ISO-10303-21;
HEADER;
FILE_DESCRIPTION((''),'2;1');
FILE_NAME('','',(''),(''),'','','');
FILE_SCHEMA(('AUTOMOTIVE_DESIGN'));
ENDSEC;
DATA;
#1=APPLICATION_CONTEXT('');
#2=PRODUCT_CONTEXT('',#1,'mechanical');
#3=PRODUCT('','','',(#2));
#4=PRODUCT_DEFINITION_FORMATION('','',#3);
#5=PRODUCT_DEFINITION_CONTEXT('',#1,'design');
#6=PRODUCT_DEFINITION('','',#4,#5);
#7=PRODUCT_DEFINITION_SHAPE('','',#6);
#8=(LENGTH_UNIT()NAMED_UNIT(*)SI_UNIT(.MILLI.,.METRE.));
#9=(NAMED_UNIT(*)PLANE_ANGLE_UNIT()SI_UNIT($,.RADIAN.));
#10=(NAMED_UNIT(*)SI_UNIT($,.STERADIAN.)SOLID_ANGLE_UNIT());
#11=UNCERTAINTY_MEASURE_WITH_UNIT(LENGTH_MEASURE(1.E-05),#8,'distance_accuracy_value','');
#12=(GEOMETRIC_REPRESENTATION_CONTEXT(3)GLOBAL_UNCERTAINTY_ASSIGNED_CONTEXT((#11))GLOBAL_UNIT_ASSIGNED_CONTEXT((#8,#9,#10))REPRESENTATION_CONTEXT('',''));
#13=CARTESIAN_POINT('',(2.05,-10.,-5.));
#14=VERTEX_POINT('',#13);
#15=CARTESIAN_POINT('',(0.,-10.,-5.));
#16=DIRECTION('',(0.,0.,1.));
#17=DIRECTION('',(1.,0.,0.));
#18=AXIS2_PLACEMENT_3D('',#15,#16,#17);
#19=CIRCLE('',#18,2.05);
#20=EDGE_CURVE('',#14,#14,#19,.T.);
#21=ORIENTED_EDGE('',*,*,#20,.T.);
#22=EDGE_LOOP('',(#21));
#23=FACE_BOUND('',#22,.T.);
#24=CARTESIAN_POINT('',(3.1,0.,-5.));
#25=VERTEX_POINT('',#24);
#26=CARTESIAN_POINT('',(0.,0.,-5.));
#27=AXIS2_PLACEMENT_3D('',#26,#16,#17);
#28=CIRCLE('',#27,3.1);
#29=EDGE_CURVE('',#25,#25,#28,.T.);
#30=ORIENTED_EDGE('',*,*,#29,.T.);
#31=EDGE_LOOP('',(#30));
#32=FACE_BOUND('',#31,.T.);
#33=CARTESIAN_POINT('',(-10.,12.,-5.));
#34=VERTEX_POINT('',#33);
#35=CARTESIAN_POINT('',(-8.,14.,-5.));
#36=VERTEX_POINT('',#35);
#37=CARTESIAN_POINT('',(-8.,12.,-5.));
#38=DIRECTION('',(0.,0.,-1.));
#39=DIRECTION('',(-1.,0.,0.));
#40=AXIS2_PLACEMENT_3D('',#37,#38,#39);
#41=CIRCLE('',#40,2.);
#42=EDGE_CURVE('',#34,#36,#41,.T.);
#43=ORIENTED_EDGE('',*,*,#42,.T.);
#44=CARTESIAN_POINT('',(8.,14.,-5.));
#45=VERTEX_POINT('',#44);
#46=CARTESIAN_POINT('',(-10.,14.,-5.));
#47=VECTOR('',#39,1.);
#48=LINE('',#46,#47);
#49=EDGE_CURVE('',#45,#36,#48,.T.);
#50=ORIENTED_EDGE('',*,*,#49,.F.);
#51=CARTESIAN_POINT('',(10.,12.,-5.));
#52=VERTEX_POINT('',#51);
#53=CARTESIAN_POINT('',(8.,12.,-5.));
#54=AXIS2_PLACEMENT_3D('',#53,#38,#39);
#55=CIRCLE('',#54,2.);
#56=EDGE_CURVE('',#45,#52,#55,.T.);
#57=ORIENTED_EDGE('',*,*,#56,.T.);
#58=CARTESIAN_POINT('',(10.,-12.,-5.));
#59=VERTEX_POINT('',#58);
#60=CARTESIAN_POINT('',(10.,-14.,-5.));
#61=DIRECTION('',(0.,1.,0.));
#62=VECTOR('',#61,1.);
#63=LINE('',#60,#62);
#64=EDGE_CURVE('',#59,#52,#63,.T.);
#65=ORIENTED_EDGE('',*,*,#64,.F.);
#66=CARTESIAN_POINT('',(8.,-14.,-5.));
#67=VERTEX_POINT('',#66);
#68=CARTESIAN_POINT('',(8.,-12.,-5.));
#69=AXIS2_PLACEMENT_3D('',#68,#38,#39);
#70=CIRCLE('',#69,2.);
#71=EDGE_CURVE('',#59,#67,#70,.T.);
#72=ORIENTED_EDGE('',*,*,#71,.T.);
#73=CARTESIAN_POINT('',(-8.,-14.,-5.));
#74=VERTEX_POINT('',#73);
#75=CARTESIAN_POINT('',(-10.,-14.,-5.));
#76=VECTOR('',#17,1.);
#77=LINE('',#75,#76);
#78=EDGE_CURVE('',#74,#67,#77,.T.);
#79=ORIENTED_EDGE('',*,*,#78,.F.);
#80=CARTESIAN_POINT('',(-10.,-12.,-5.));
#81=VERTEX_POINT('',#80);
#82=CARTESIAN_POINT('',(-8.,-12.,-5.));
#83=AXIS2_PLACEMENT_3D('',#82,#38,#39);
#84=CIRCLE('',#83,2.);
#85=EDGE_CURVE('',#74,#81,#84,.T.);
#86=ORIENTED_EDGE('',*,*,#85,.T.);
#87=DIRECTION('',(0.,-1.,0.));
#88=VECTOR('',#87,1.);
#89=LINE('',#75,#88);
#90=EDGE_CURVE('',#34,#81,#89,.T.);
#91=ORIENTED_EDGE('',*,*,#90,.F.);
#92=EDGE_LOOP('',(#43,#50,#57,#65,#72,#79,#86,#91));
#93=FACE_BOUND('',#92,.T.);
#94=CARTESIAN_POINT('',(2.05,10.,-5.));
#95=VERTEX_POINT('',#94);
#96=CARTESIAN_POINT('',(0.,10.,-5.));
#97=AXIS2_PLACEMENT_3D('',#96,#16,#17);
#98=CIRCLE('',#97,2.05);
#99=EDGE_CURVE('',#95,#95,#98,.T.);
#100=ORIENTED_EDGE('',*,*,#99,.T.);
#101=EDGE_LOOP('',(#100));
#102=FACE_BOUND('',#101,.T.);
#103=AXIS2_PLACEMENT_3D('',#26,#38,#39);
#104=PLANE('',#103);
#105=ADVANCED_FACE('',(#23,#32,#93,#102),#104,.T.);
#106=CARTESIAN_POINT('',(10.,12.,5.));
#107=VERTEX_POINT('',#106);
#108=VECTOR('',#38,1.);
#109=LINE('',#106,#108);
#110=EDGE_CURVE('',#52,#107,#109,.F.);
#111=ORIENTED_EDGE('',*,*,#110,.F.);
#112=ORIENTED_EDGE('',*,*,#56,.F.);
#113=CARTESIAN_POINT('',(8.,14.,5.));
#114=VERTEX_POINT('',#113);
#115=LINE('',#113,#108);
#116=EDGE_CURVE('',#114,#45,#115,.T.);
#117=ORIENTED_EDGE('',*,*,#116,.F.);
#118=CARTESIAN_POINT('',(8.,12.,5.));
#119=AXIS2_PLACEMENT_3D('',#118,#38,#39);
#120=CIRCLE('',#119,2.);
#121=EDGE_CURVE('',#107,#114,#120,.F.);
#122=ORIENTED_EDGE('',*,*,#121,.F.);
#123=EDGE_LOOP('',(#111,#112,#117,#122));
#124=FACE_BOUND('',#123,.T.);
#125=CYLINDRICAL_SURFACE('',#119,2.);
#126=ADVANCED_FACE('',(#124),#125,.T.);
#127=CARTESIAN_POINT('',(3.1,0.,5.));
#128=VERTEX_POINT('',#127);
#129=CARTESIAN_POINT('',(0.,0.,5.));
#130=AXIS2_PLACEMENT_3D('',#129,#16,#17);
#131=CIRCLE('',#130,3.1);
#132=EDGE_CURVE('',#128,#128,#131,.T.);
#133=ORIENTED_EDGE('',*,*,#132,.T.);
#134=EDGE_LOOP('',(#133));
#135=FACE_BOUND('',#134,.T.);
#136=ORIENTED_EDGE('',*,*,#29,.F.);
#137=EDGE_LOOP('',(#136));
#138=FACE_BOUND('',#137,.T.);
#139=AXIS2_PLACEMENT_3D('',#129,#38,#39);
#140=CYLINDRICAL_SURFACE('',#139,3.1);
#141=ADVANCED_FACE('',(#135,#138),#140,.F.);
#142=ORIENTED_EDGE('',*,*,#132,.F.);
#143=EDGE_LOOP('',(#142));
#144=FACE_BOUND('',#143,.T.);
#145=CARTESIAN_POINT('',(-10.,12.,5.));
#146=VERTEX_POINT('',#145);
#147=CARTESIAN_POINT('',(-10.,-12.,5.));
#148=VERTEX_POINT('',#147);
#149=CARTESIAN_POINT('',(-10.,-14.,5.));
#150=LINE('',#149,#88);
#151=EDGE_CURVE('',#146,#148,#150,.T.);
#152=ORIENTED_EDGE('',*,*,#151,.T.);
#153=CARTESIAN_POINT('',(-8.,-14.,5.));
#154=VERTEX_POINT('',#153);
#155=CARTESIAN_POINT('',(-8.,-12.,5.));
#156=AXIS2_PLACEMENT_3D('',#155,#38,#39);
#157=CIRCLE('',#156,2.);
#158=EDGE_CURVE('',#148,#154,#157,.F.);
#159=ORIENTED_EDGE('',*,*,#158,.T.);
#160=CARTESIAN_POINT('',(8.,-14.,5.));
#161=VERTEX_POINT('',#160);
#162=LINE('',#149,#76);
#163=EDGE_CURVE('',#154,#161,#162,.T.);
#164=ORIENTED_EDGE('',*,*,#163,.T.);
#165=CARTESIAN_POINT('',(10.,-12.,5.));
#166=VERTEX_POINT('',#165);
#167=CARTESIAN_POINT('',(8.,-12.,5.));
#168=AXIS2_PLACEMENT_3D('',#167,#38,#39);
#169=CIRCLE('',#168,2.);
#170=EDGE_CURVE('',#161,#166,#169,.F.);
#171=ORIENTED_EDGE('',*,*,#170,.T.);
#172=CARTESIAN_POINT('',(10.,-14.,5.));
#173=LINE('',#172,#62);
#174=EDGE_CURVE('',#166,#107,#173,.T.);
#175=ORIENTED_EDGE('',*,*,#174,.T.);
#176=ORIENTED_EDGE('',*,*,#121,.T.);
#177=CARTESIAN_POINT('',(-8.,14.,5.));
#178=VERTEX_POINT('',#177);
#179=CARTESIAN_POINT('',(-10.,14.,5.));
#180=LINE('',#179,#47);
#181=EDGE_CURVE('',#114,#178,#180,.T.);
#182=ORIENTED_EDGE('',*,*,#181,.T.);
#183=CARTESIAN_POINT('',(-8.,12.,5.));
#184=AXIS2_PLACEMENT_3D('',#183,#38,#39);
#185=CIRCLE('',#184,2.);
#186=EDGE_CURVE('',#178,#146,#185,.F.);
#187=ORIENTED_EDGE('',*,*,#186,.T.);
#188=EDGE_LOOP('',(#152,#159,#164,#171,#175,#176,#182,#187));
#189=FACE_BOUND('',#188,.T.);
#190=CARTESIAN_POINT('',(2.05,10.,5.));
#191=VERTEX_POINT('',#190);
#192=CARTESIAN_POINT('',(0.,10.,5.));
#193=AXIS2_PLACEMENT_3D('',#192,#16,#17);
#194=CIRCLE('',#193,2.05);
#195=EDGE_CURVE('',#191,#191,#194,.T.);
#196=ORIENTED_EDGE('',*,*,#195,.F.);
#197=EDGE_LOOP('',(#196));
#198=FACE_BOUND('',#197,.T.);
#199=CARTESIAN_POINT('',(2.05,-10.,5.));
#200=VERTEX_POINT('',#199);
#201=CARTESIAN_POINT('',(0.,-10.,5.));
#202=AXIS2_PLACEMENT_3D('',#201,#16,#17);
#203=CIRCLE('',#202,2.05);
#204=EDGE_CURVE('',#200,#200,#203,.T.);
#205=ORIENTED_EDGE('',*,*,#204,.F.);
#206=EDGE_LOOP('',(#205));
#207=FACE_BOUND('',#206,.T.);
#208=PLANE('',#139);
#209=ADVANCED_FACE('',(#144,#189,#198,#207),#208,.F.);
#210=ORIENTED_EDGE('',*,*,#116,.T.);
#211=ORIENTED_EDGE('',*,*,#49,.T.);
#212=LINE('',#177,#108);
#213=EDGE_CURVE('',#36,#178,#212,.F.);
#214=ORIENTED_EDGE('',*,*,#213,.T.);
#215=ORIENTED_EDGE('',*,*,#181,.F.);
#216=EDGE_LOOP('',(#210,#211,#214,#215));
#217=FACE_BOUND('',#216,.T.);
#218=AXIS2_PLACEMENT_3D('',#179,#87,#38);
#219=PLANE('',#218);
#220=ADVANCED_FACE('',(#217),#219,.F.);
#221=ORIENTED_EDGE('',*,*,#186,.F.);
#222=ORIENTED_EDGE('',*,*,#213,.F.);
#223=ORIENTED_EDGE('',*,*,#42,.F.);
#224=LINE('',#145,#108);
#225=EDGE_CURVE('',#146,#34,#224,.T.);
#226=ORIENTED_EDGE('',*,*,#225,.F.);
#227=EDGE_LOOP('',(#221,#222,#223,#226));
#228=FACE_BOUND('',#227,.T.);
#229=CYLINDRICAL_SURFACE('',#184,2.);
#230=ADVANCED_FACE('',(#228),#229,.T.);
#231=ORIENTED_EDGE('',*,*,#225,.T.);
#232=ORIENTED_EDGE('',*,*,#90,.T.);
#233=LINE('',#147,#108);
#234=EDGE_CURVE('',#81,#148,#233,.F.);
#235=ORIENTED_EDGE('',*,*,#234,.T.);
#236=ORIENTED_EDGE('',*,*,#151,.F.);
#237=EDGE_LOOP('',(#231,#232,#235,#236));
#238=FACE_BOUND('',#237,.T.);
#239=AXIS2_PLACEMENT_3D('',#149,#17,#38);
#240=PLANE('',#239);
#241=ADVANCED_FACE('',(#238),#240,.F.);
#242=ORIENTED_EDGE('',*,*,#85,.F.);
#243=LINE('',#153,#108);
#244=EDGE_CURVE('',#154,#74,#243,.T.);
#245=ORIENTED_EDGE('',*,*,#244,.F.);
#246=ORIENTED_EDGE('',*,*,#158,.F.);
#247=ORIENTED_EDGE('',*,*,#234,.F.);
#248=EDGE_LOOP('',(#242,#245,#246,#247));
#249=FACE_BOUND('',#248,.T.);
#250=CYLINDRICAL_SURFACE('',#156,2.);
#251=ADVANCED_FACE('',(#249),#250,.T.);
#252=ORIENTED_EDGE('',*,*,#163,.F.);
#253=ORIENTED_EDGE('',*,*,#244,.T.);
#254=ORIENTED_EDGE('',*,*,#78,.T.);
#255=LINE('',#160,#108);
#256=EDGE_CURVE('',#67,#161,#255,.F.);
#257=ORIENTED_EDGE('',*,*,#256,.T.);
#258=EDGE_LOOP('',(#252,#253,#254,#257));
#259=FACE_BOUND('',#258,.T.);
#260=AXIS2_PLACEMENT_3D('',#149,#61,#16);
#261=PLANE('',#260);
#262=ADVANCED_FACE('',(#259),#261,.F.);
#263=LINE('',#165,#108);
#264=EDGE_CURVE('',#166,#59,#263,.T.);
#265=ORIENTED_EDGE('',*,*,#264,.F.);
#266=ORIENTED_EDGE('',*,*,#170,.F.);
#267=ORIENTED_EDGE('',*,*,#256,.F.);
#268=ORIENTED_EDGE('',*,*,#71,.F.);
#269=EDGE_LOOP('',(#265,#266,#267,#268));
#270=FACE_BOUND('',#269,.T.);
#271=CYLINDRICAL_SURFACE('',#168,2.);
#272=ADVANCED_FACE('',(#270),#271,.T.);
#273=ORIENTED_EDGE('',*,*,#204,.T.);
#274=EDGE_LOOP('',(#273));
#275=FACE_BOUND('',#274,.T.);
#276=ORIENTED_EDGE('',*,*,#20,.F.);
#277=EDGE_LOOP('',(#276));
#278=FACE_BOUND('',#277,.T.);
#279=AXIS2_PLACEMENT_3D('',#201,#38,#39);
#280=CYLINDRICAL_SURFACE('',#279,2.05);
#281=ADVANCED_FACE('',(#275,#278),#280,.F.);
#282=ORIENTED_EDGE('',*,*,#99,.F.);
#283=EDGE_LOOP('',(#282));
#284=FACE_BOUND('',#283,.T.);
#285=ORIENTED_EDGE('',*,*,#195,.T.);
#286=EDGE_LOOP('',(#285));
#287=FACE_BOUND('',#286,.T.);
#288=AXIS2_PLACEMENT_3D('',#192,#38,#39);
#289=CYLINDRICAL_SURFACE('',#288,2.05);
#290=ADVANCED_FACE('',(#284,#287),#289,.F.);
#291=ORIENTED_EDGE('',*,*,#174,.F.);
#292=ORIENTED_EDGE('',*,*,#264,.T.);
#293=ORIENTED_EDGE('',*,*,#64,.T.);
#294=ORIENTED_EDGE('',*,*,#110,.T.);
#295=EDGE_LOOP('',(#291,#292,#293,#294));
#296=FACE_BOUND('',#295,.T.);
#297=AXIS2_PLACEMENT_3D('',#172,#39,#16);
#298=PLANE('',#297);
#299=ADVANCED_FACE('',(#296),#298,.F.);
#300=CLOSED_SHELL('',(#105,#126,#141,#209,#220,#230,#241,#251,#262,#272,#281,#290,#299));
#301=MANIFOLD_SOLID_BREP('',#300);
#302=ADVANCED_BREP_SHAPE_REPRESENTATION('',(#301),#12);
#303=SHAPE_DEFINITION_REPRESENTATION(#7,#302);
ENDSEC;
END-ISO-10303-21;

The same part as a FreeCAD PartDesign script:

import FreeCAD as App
import Part
import Sketcher

V = App.Vector
Q = App.Units.Quantity


def edges_at(feature, points):
    """Names of the edges that pass closest to the given points."""
    edges = feature.Shape.Edges
    near = lambda p: min(range(len(edges)), key=lambda i: edges[i].distToShape(Part.Vertex(*p))[0])
    return sorted({f"Edge{near(p) + 1}" for p in points})


def add_polygon(sketch, points):
    """Adds a closed chain of lines whose ends are joined by coincident constraints."""
    first, n = sketch.GeometryCount, len(points)
    for a, b in zip(points, points[1:] + points[:1]):
        sketch.addGeometry(Part.LineSegment(App.Vector(*a, 0), App.Vector(*b, 0)), False)
    for i in range(n):
        sketch.addConstraint(Sketcher.Constraint("Coincident", first + i, 2, first + (i + 1) % n, 1))

doc = App.newDocument("Part")
body = doc.addObject("PartDesign::Body", "Body")

# Sketch on XY plane
sketch1 = doc.addObject("Sketcher::SketchObject", "Sketch")
body.addObject(sketch1)
sketch1.AttachmentSupport = (doc.XY_Plane, [""])
sketch1.MapMode = "FlatFace"
add_polygon(sketch1, [(-10, 14), (-10, -14), (10, -14), (10, 14)])  # lines 0-3
sketch1.addGeometry(Part.Circle(V(0, -10, 0), V(0, 0, 1), 2), False)  # 4
sketch1.addGeometry(Part.Circle(V(0, 0, 0), V(0, 0, 1), 3.1), False)  # 5
sketch1.addGeometry(Part.Circle(V(0, 10, 0), V(0, 0, 1), 2), False)  # 6
sketch1.addConstraint([
    Sketcher.Constraint("Vertical", 0),
    Sketcher.Constraint("Horizontal", 1),
    Sketcher.Constraint("Vertical", 2),
    Sketcher.Constraint("Horizontal", 3),
    Sketcher.Constraint("Coincident", 5, 3, -1, 1),
    Sketcher.Constraint("Equal", 4, 6),
    Sketcher.Constraint("Symmetric", 4, 3, 6, 3, -1, 1),
    Sketcher.Constraint("Symmetric", 0, 2, 2, 2, -1, 1),
    Sketcher.Constraint("PointOnObject", 4, 3, -2),
    Sketcher.Constraint("Diameter", 4, Q("4.1 mm")),
    Sketcher.Constraint("Diameter", 5, Q("6.2 mm")),
    Sketcher.Constraint("DistanceX", 1, 1, 1, 2, Q("20 mm")),
    Sketcher.Constraint("DistanceY", 0, 2, 0, 1, Q("28 mm")),
    Sketcher.Constraint("DistanceY", 4, 3, -1, 1, Q("10 mm")),
])
pad1 = doc.addObject("PartDesign::Pad", "Pad")
body.addObject(pad1)
pad1.Profile = sketch1
pad1.Length = 10
pad1.Midplane = True
doc.recompute()

fillet = doc.addObject("PartDesign::Fillet", "Fillet")
body.addObject(fillet)
fillet.Base = (pad1, edges_at(pad1, [
    (10, -14, 0),
    (-10, -14, 0),
    (-10, 14, 0),
    (10, 14, 0),
]))
fillet.Radius = 2

doc.recompute()
